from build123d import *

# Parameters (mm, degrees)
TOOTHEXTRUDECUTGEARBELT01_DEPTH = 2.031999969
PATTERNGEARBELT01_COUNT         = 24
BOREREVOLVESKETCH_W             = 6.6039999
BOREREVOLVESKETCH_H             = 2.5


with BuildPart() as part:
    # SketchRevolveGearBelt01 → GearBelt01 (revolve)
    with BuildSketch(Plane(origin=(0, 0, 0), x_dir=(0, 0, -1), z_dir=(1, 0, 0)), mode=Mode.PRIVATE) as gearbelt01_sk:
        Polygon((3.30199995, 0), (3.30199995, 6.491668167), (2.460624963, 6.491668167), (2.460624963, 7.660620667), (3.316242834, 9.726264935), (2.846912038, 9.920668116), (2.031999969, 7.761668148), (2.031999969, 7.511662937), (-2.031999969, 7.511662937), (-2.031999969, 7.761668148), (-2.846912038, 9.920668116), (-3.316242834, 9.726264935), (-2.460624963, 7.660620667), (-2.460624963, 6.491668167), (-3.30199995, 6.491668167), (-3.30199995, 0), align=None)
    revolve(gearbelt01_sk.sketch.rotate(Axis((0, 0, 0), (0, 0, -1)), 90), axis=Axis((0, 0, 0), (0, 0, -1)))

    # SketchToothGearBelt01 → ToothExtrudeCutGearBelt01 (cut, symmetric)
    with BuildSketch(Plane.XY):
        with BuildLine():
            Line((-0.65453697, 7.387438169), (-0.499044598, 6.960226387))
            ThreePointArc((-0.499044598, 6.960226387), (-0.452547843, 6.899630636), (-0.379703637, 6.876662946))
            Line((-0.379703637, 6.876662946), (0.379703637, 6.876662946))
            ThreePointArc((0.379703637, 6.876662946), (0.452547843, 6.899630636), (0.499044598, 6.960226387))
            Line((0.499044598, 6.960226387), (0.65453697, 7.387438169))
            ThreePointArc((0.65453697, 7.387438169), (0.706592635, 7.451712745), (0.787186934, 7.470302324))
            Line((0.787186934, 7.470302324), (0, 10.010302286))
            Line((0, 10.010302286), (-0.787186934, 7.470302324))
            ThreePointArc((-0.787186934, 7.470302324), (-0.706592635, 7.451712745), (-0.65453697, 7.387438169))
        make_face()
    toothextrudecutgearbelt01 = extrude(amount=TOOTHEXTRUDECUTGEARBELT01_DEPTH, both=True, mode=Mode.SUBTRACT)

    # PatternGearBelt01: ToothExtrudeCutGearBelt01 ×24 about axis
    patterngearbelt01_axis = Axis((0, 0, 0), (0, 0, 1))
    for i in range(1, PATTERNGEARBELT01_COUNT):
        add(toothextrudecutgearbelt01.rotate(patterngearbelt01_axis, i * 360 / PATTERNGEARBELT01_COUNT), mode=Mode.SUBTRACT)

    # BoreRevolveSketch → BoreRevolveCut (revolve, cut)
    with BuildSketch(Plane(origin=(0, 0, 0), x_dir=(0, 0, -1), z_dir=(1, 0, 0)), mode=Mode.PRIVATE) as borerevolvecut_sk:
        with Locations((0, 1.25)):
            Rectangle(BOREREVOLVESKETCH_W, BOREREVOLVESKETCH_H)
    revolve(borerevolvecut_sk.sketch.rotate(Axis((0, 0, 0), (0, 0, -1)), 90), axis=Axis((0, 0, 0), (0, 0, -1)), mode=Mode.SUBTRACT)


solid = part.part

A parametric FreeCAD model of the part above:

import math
import FreeCAD as App
import Part
import Sketcher
from FreeCAD import Vector
Q = App.Units.Quantity


def add_polygon(sketch, points):
    """Adds a closed chain of lines whose ends are joined by coincident constraints."""
    first, n = sketch.GeometryCount, len(points)
    for a, b in zip(points, points[1:] + points[:1]):
        sketch.addGeometry(Part.LineSegment(App.Vector(*a, 0), App.Vector(*b, 0)), False)
    for i in range(n):
        sketch.addConstraint(Sketcher.Constraint("Coincident", first + i, 2, first + (i + 1) % n, 1))

doc = App.newDocument("Part")
body = doc.addObject("PartDesign::Body", "Body")

# Sketch on YZ plane
sketch1 = doc.addObject("Sketcher::SketchObject", "Sketch")
body.addObject(sketch1)
sketch1.AttachmentSupport = (doc.YZ_Plane, [""])
sketch1.MapMode = "FlatFace"
add_polygon(sketch1, [(0, -3.3), (6.49, -3.3), (6.49, -2.46), (7.66, -2.46), (9.73, -3.32), (9.92, -2.85), (7.76, -2.03), (7.51, -2.03), (7.51, 2.03), (7.76, 2.03), (9.92, 2.85), (9.73, 3.32), (7.66, 2.46), (6.49, 2.46), (6.49, 3.3), (0, 3.3)])  # lines 0-15
sketch1.addConstraint([
    Sketcher.Constraint("Horizontal", 0),
    Sketcher.Constraint("Vertical", 1),
    Sketcher.Constraint("Horizontal", 2),
    Sketcher.Constraint("Horizontal", 6),
    Sketcher.Constraint("Vertical", 7),
    Sketcher.Constraint("Horizontal", 8),
    Sketcher.Constraint("Horizontal", 12),
    Sketcher.Constraint("Vertical", 13),
    Sketcher.Constraint("Horizontal", 14),
    Sketcher.Constraint("Vertical", 15),
    Sketcher.Constraint("Symmetric", 14, 2, 15, 2, -1, 1),
    Sketcher.Constraint("Symmetric", 5, 2, 8, 2, -1),
    Sketcher.Constraint("Symmetric", 4, 2, 9, 2, -1),
    Sketcher.Constraint("Symmetric", 3, 2, 10, 2, -1),
    Sketcher.Constraint("Symmetric", 2, 2, 11, 2, -1),
    Sketcher.Constraint("Perpendicular", 3, 4),
    Sketcher.Constraint("Vertical", 1, 2, 12, 2),
    Sketcher.Constraint("DistanceY", 7, 1, 7, 2, Q("0.16 in")),
    Sketcher.Constraint("DistanceY", 15, 2, 15, 1, Q("0.26 in")),
    Sketcher.Constraint("Angle", 3, Q("-22.5 deg")),
    Sketcher.Constraint("Distance", 4, Q("0.02 in")),
    Sketcher.Constraint("DistanceX", 1, 2, 5, 2, Q("0.05 in")),
    Sketcher.Constraint("DistanceX", 1, 2, 4, 2, Q("0.135 in")),
    Sketcher.Constraint("DistanceX", 0, 1, 0, 2, 6.491668),
    Sketcher.Constraint("DistanceX", 7, 2, 10, 2, 2.214602),
    Sketcher.Constraint("DistanceX", 2, 1, 2, 2, 1.168952),
    Sketcher.Constraint("DistanceY", 1, 1, 1, 2, 0.841375),
])
revolution = doc.addObject("PartDesign::Revolution", "Revolution")
body.addObject(revolution)
revolution.Profile = sketch1
revolution.ReferenceAxis = (sketch1, ["V_Axis"])
revolution.Angle = 360

# Sketch on XY plane
sketch2 = doc.addObject("Sketcher::SketchObject", "Sketch001")
body.addObject(sketch2)
sketch2.AttachmentSupport = (doc.XY_Plane, [""])
sketch2.MapMode = "FlatFace"
sketch2.addGeometry([
    Part.LineSegment(Vector(-0.65, 7.39, 0), Vector(-0.5, 6.96, 0)),  # 0
    Part.ArcOfCircle(Part.Circle(Vector(-0.38, 7, 0), Vector(0, 0, 1), 0.13), math.radians(-160), math.radians(-90)),  # 1
    Part.LineSegment(Vector(-0.38, 6.88, 0), Vector(0.38, 6.88, 0)),  # 2
    Part.ArcOfCircle(Part.Circle(Vector(0.38, 7, 0), Vector(0, 0, 1), 0.13), math.radians(-90), math.radians(-20)),  # 3
    Part.LineSegment(Vector(0.5, 6.96, 0), Vector(0.65, 7.39, 0)),  # 4
    Part.ArcOfCircle(Part.Circle(Vector(0.77, 7.34, 0), Vector(0, 0, 1), 0.13), math.radians(84), math.radians(160)),  # 5
    Part.LineSegment(Vector(0.79, 7.47, 0), Vector(0, 10.01, 0)),  # 6
    Part.LineSegment(Vector(0, 10.01, 0), Vector(-0.79, 7.47, 0)),  # 7
    Part.ArcOfCircle(Part.Circle(Vector(-0.77, 7.34, 0), Vector(0, 0, 1), 0.13), math.radians(20), math.radians(96)),  # 8
], False)
sketch2.addConstraint([
    Sketcher.Constraint("Tangent", 0, 2, 1, 1),
    Sketcher.Constraint("Tangent", 1, 2, 2, 1),
    Sketcher.Constraint("Tangent", 2, 2, 3, 1),
    Sketcher.Constraint("Tangent", 3, 2, 4, 1),
    Sketcher.Constraint("Tangent", 4, 2, 5, 2),
    Sketcher.Constraint("Coincident", 5, 1, 6, 1),
    Sketcher.Constraint("Coincident", 6, 2, 7, 1),
    Sketcher.Constraint("Coincident", 7, 2, 8, 2),
    Sketcher.Constraint("Tangent", 8, 1, 0, 1),
    Sketcher.Constraint("Horizontal", 2),
    Sketcher.Constraint("Equal", 1, 3),
    Sketcher.Constraint("Equal", 3, 5),
    Sketcher.Constraint("Equal", 5, 8),
    Sketcher.Constraint("Symmetric", 5, 3, 8, 3, -2),
    Sketcher.Constraint("PointOnObject", 6, 2, -2),
    Sketcher.Constraint("Horizontal", 0, 2, 3, 2),
    Sketcher.Constraint("Horizontal", 5, 1, 7, 2),
    Sketcher.Constraint("Angle", 0, Q("-70 deg")),
    Sketcher.Constraint("Radius", 1, Q("0.005 in")),
    Sketcher.Constraint("DistanceY", 5, 1, 6, 2, Q("0.1 in")),
    Sketcher.Constraint("DistanceY", -1, 1, 5, 3, 7.344002),
    Sketcher.Constraint("DistanceY", 5, 3, 5, 1, 0.126301),
    Sketcher.Constraint("Distance", 0, 0.454629),
    Sketcher.Constraint("DistanceX", 2, 1, 2, 2, 0.759407),
])
pocket1 = doc.addObject("PartDesign::Pocket", "Pocket")
body.addObject(pocket1)
pocket1.Profile = sketch2
pocket1.Length = Q("0.16 in")
pocket1.Midplane = True
doc.recompute()

polarpattern = doc.addObject("PartDesign::PolarPattern", "PolarPattern")
body.addObject(polarpattern)
polarpattern.Originals = [pocket1]
polarpattern.Axis = (doc.Z_Axis, [""])
polarpattern.Angle = 360
polarpattern.Occurrences = 24
body.Tip = polarpattern

# Sketch on YZ plane
sketch3 = doc.addObject("Sketcher::SketchObject", "Sketch002")
body.addObject(sketch3)
sketch3.AttachmentSupport = (doc.YZ_Plane, [""])
sketch3.MapMode = "FlatFace"
add_polygon(sketch3, [(2.5, 3.3), (0, 3.3), (0, -3.3), (2.5, -3.3)])  # lines 0-3
sketch3.addConstraint([
    Sketcher.Constraint("Horizontal", 0),
    Sketcher.Constraint("Vertical", 1),
    Sketcher.Constraint("Horizontal", 2),
    Sketcher.Constraint("Vertical", 3),
    Sketcher.Constraint("Symmetric", 0, 2, 1, 2, -1, 1),
    Sketcher.Constraint("DistanceY", 1, 2, 1, 1, Q("0.26 in")),
    Sketcher.Constraint("DistanceX", 0, 2, 0, 1, 2.5),
])
groove = doc.addObject("PartDesign::Groove", "Groove")
body.addObject(groove)
groove.Profile = sketch3
groove.ReferenceAxis = (sketch3, ["V_Axis"])
groove.Angle = 360

doc.recompute()
